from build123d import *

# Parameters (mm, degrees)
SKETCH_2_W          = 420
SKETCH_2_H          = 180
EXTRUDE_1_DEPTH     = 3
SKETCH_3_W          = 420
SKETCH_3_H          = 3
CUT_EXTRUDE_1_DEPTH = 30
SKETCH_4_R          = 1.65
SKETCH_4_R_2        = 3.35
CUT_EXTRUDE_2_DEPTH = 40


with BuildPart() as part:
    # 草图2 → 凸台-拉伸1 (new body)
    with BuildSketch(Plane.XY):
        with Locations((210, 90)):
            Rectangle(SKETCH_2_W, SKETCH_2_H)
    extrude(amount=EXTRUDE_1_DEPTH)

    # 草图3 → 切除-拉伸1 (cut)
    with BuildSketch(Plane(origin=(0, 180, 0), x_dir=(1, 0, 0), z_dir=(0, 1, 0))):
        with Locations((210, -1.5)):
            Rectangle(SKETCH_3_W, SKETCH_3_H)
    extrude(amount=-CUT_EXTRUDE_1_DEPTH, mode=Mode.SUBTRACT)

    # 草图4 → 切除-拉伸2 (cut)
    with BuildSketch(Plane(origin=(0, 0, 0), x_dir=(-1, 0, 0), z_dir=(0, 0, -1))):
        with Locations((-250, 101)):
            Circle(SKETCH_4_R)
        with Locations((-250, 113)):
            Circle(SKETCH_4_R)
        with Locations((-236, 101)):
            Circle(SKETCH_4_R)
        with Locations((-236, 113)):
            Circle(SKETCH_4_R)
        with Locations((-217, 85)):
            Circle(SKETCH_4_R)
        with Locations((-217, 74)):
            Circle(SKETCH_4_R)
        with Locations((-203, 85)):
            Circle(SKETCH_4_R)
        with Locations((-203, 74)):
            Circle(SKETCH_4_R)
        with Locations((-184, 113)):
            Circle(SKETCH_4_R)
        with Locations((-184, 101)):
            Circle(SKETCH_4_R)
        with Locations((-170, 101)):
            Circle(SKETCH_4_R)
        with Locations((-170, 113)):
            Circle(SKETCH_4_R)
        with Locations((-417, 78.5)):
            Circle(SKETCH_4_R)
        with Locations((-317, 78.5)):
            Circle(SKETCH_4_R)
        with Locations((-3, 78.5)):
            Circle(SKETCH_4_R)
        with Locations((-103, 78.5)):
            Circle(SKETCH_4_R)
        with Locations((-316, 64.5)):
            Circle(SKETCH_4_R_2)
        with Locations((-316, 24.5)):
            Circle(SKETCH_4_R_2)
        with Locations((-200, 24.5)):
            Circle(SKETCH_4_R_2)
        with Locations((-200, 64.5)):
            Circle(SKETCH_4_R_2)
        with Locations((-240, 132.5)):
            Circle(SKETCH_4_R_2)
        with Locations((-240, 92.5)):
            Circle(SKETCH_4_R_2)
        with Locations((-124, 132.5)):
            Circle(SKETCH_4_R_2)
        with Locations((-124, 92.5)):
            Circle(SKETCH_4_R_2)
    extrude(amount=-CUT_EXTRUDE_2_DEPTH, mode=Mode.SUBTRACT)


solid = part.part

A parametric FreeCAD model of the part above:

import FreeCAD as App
import Part
import Sketcher

doc = App.newDocument("Part")
body = doc.addObject("PartDesign::Body", "Body")

# Sketch on XY plane
sketch1 = body.newObject("Sketcher::SketchObject", "Sketch")
sketch1.AttachmentSupport = (doc.getObject("XY_Plane"), [""])
sketch1.MapMode = "FlatFace"
sketch1.addGeometry([
    Part.LineSegment(App.Vector(0, 180, 0), App.Vector(0, 0, 0)),
    Part.LineSegment(App.Vector(0, 0, 0), App.Vector(420, 0, 0)),
    Part.LineSegment(App.Vector(420, 0, 0), App.Vector(420, 180, 0)),
    Part.LineSegment(App.Vector(420, 180, 0), App.Vector(0, 180, 0)),
], False)
sketch1.addConstraint([
    Sketcher.Constraint("Coincident", 0, 2, 1, 1),
    Sketcher.Constraint("Coincident", 1, 2, 2, 1),
    Sketcher.Constraint("Coincident", 2, 2, 3, 1),
    Sketcher.Constraint("Coincident", 3, 2, 0, 1),
    Sketcher.Constraint("Vertical", 0),
    Sketcher.Constraint("Horizontal", 1),
    Sketcher.Constraint("Vertical", 2),
    Sketcher.Constraint("Horizontal", 3),
    Sketcher.Constraint("Coincident", 0, 2, -1, 1),
    Sketcher.Constraint("DistanceX", 1, 1, 1, 2, 420.0),
    Sketcher.Constraint("DistanceY", 0, 2, 0, 1, 180.0),
])
pad1 = body.newObject("PartDesign::Pad", "Pad")
pad1.Profile = sketch1
pad1.Length = 3

# Sketch on XZ plane
sketch2 = body.newObject("Sketcher::SketchObject", "Sketch001")
sketch2.AttachmentSupport = (doc.getObject("XZ_Plane"), [""])
sketch2.MapMode = "FlatFace"
sketch2.AttachmentOffset = App.Placement(App.Vector(0, 0, -180), App.Rotation())
sketch2.addGeometry([
    Part.LineSegment(App.Vector(0, 0, 0), App.Vector(0, 3, 0)),
    Part.LineSegment(App.Vector(0, 3, 0), App.Vector(420, 3, 0)),
    Part.LineSegment(App.Vector(420, 3, 0), App.Vector(420, 0, 0)),
    Part.LineSegment(App.Vector(420, 0, 0), App.Vector(0, 0, 0)),
], False)
sketch2.addConstraint([
    Sketcher.Constraint("Coincident", 0, 2, 1, 1),
    Sketcher.Constraint("Coincident", 1, 2, 2, 1),
    Sketcher.Constraint("Coincident", 2, 2, 3, 1),
    Sketcher.Constraint("Coincident", 3, 2, 0, 1),
    Sketcher.Constraint("Vertical", 0),
    Sketcher.Constraint("Horizontal", 1),
    Sketcher.Constraint("Vertical", 2),
    Sketcher.Constraint("Horizontal", 3),
    Sketcher.Constraint("Coincident", 3, 2, -1, 1),
    Sketcher.Constraint("DistanceX", 1, 1, 1, 2, 420.0),
    Sketcher.Constraint("DistanceY", 0, 1, 0, 2, 3.0),
])
pocket1 = body.newObject("PartDesign::Pocket", "Pocket")
pocket1.Profile = sketch2
pocket1.Length = 30
pocket1.Reversed = True

# Sketch on XY plane
sketch3 = body.newObject("Sketcher::SketchObject", "Sketch002")
sketch3.AttachmentSupport = (doc.getObject("XY_Plane"), [""])
sketch3.MapMode = "FlatFace"
sketch3.addGeometry([
    Part.Circle(App.Vector(250, 101, 0), App.Vector(0, 0, 1), 1.65),  # 0
    Part.Circle(App.Vector(250, 113, 0), App.Vector(0, 0, 1), 1.65),  # 1
    Part.Circle(App.Vector(236, 101, 0), App.Vector(0, 0, 1), 1.65),  # 2
    Part.Circle(App.Vector(236, 113, 0), App.Vector(0, 0, 1), 1.65),  # 3
    Part.Circle(App.Vector(217, 85, 0), App.Vector(0, 0, 1), 1.65),  # 4
    Part.Circle(App.Vector(217, 74, 0), App.Vector(0, 0, 1), 1.65),  # 5
    Part.Circle(App.Vector(203, 85, 0), App.Vector(0, 0, 1), 1.65),  # 6
    Part.Circle(App.Vector(203, 74, 0), App.Vector(0, 0, 1), 1.65),  # 7
    Part.Circle(App.Vector(184, 113, 0), App.Vector(0, 0, 1), 1.65),  # 8
    Part.Circle(App.Vector(184, 101, 0), App.Vector(0, 0, 1), 1.65),  # 9
    Part.Circle(App.Vector(170, 101, 0), App.Vector(0, 0, 1), 1.65),  # 10
    Part.Circle(App.Vector(170, 113, 0), App.Vector(0, 0, 1), 1.65),  # 11
    Part.Circle(App.Vector(417, 78.5, 0), App.Vector(0, 0, 1), 1.65),  # 12
    Part.Circle(App.Vector(317, 78.5, 0), App.Vector(0, 0, 1), 1.65),  # 13
    Part.Circle(App.Vector(3, 78.5, 0), App.Vector(0, 0, 1), 1.65),  # 14
    Part.Circle(App.Vector(103, 78.5, 0), App.Vector(0, 0, 1), 1.65),  # 15
    Part.Circle(App.Vector(316, 64.5, 0), App.Vector(0, 0, 1), 3.35),  # 16
    Part.Circle(App.Vector(316, 24.5, 0), App.Vector(0, 0, 1), 3.35),  # 17
    Part.Circle(App.Vector(200, 24.5, 0), App.Vector(0, 0, 1), 3.35),  # 18
    Part.Circle(App.Vector(200, 64.5, 0), App.Vector(0, 0, 1), 3.35),  # 19
    Part.Circle(App.Vector(240, 132.5, 0), App.Vector(0, 0, 1), 3.35),  # 20
    Part.Circle(App.Vector(240, 92.5, 0), App.Vector(0, 0, 1), 3.35),  # 21
    Part.Circle(App.Vector(124, 132.5, 0), App.Vector(0, 0, 1), 3.35),  # 22
    Part.Circle(App.Vector(124, 92.5, 0), App.Vector(0, 0, 1), 3.35),  # 23
], False)
sketch3.addConstraint([
    Sketcher.Constraint("Equal", 0, 1),
    Sketcher.Constraint("Equal", 1, 2),
    Sketcher.Constraint("Equal", 2, 3),
    Sketcher.Constraint("Equal", 3, 4),
    Sketcher.Constraint("Equal", 4, 5),
    Sketcher.Constraint("Equal", 5, 6),
    Sketcher.Constraint("Equal", 6, 7),
    Sketcher.Constraint("Equal", 7, 8),
    Sketcher.Constraint("Equal", 8, 9),
    Sketcher.Constraint("Equal", 9, 10),
    Sketcher.Constraint("Equal", 10, 11),
    Sketcher.Constraint("Equal", 11, 12),
    Sketcher.Constraint("Equal", 12, 13),
    Sketcher.Constraint("Equal", 13, 14),
    Sketcher.Constraint("Equal", 14, 15),
    Sketcher.Constraint("Equal", 16, 17),
    Sketcher.Constraint("Equal", 17, 18),
    Sketcher.Constraint("Equal", 18, 19),
    Sketcher.Constraint("Equal", 19, 20),
    Sketcher.Constraint("Equal", 20, 21),
    Sketcher.Constraint("Equal", 21, 22),
    Sketcher.Constraint("Equal", 22, 23),
    Sketcher.Constraint("Horizontal", 0, 3, 2, 3),
    Sketcher.Constraint("Horizontal", 1, 3, 3, 3),
    Sketcher.Constraint("Horizontal", 4, 3, 6, 3),
    Sketcher.Constraint("Horizontal", 5, 3, 7, 3),
    Sketcher.Constraint("Horizontal", 3, 3, 8, 3),
    Sketcher.Constraint("Horizontal", 2, 3, 9, 3),
    Sketcher.Constraint("Horizontal", 9, 3, 10, 3),
    Sketcher.Constraint("Horizontal", 8, 3, 11, 3),
    Sketcher.Constraint("Horizontal", 12, 3, 13, 3),
    Sketcher.Constraint("Horizontal", 13, 3, 14, 3),
    Sketcher.Constraint("Horizontal", 14, 3, 15, 3),
    Sketcher.Constraint("Horizontal", 17, 3, 18, 3),
    Sketcher.Constraint("Horizontal", 16, 3, 19, 3),
    Sketcher.Constraint("Horizontal", 20, 3, 22, 3),
    Sketcher.Constraint("Horizontal", 21, 3, 23, 3),
    Sketcher.Constraint("Vertical", 0, 3, 1, 3),
    Sketcher.Constraint("Vertical", 2, 3, 3, 3),
    Sketcher.Constraint("Vertical", 4, 3, 5, 3),
    Sketcher.Constraint("Vertical", 6, 3, 7, 3),
    Sketcher.Constraint("Vertical", 8, 3, 9, 3),
    Sketcher.Constraint("Vertical", 10, 3, 11, 3),
    Sketcher.Constraint("Vertical", 16, 3, 17, 3),
    Sketcher.Constraint("Vertical", 18, 3, 19, 3),
    Sketcher.Constraint("Vertical", 20, 3, 21, 3),
    Sketcher.Constraint("Vertical", 22, 3, 23, 3),
    Sketcher.Constraint("Diameter", 0, 3.3),
    Sketcher.Constraint("Diameter", 16, 6.7),
    Sketcher.Constraint("DistanceX", -1, 1, 0, 3, 250.0),
    Sketcher.Constraint("DistanceY", -1, 1, 0, 3, 101.0),
    Sketcher.Constraint("DistanceY", -1, 1, 1, 3, 113.0),
    Sketcher.Constraint("DistanceX", -1, 1, 2, 3, 236.0),
    Sketcher.Constraint("DistanceX", -1, 1, 4, 3, 217.0),
    Sketcher.Constraint("DistanceY", -1, 1, 4, 3, 85.0),
    Sketcher.Constraint("DistanceY", -1, 1, 5, 3, 74.0),
    Sketcher.Constraint("DistanceX", -1, 1, 6, 3, 203.0),
    Sketcher.Constraint("DistanceX", -1, 1, 8, 3, 184.0),
    Sketcher.Constraint("DistanceX", -1, 1, 10, 3, 170.0),
    Sketcher.Constraint("DistanceX", -1, 1, 12, 3, 417.0),
    Sketcher.Constraint("DistanceX", -1, 1, 13, 3, 317.0),
    Sketcher.Constraint("DistanceX", -1, 1, 14, 3, 3.0),
    Sketcher.Constraint("DistanceX", -1, 1, 15, 3, 103.0),
    Sketcher.Constraint("DistanceX", -1, 1, 16, 3, 316.0),
    Sketcher.Constraint("DistanceX", -1, 1, 18, 3, 200.0),
    Sketcher.Constraint("DistanceX", -1, 1, 20, 3, 240.0),
    Sketcher.Constraint("DistanceX", -1, 1, 22, 3, 124.0),
    Sketcher.Constraint("DistanceY", 16, 3, 13, 3, 14.0),
    Sketcher.Constraint("DistanceY", 17, 3, 16, 3, 40.0),
    Sketcher.Constraint("DistanceY", 15, 3, 22, 3, 54.0),
    Sketcher.Constraint("DistanceY", 15, 3, 23, 3, 14.0),
    Sketcher.Constraint("DistanceY", -1, 1, 12, 3, 78.5),
])
pocket2 = body.newObject("PartDesign::Pocket", "Pocket001")
pocket2.Profile = sketch3
pocket2.Length = 40
pocket2.Reversed = True

doc.recompute()
